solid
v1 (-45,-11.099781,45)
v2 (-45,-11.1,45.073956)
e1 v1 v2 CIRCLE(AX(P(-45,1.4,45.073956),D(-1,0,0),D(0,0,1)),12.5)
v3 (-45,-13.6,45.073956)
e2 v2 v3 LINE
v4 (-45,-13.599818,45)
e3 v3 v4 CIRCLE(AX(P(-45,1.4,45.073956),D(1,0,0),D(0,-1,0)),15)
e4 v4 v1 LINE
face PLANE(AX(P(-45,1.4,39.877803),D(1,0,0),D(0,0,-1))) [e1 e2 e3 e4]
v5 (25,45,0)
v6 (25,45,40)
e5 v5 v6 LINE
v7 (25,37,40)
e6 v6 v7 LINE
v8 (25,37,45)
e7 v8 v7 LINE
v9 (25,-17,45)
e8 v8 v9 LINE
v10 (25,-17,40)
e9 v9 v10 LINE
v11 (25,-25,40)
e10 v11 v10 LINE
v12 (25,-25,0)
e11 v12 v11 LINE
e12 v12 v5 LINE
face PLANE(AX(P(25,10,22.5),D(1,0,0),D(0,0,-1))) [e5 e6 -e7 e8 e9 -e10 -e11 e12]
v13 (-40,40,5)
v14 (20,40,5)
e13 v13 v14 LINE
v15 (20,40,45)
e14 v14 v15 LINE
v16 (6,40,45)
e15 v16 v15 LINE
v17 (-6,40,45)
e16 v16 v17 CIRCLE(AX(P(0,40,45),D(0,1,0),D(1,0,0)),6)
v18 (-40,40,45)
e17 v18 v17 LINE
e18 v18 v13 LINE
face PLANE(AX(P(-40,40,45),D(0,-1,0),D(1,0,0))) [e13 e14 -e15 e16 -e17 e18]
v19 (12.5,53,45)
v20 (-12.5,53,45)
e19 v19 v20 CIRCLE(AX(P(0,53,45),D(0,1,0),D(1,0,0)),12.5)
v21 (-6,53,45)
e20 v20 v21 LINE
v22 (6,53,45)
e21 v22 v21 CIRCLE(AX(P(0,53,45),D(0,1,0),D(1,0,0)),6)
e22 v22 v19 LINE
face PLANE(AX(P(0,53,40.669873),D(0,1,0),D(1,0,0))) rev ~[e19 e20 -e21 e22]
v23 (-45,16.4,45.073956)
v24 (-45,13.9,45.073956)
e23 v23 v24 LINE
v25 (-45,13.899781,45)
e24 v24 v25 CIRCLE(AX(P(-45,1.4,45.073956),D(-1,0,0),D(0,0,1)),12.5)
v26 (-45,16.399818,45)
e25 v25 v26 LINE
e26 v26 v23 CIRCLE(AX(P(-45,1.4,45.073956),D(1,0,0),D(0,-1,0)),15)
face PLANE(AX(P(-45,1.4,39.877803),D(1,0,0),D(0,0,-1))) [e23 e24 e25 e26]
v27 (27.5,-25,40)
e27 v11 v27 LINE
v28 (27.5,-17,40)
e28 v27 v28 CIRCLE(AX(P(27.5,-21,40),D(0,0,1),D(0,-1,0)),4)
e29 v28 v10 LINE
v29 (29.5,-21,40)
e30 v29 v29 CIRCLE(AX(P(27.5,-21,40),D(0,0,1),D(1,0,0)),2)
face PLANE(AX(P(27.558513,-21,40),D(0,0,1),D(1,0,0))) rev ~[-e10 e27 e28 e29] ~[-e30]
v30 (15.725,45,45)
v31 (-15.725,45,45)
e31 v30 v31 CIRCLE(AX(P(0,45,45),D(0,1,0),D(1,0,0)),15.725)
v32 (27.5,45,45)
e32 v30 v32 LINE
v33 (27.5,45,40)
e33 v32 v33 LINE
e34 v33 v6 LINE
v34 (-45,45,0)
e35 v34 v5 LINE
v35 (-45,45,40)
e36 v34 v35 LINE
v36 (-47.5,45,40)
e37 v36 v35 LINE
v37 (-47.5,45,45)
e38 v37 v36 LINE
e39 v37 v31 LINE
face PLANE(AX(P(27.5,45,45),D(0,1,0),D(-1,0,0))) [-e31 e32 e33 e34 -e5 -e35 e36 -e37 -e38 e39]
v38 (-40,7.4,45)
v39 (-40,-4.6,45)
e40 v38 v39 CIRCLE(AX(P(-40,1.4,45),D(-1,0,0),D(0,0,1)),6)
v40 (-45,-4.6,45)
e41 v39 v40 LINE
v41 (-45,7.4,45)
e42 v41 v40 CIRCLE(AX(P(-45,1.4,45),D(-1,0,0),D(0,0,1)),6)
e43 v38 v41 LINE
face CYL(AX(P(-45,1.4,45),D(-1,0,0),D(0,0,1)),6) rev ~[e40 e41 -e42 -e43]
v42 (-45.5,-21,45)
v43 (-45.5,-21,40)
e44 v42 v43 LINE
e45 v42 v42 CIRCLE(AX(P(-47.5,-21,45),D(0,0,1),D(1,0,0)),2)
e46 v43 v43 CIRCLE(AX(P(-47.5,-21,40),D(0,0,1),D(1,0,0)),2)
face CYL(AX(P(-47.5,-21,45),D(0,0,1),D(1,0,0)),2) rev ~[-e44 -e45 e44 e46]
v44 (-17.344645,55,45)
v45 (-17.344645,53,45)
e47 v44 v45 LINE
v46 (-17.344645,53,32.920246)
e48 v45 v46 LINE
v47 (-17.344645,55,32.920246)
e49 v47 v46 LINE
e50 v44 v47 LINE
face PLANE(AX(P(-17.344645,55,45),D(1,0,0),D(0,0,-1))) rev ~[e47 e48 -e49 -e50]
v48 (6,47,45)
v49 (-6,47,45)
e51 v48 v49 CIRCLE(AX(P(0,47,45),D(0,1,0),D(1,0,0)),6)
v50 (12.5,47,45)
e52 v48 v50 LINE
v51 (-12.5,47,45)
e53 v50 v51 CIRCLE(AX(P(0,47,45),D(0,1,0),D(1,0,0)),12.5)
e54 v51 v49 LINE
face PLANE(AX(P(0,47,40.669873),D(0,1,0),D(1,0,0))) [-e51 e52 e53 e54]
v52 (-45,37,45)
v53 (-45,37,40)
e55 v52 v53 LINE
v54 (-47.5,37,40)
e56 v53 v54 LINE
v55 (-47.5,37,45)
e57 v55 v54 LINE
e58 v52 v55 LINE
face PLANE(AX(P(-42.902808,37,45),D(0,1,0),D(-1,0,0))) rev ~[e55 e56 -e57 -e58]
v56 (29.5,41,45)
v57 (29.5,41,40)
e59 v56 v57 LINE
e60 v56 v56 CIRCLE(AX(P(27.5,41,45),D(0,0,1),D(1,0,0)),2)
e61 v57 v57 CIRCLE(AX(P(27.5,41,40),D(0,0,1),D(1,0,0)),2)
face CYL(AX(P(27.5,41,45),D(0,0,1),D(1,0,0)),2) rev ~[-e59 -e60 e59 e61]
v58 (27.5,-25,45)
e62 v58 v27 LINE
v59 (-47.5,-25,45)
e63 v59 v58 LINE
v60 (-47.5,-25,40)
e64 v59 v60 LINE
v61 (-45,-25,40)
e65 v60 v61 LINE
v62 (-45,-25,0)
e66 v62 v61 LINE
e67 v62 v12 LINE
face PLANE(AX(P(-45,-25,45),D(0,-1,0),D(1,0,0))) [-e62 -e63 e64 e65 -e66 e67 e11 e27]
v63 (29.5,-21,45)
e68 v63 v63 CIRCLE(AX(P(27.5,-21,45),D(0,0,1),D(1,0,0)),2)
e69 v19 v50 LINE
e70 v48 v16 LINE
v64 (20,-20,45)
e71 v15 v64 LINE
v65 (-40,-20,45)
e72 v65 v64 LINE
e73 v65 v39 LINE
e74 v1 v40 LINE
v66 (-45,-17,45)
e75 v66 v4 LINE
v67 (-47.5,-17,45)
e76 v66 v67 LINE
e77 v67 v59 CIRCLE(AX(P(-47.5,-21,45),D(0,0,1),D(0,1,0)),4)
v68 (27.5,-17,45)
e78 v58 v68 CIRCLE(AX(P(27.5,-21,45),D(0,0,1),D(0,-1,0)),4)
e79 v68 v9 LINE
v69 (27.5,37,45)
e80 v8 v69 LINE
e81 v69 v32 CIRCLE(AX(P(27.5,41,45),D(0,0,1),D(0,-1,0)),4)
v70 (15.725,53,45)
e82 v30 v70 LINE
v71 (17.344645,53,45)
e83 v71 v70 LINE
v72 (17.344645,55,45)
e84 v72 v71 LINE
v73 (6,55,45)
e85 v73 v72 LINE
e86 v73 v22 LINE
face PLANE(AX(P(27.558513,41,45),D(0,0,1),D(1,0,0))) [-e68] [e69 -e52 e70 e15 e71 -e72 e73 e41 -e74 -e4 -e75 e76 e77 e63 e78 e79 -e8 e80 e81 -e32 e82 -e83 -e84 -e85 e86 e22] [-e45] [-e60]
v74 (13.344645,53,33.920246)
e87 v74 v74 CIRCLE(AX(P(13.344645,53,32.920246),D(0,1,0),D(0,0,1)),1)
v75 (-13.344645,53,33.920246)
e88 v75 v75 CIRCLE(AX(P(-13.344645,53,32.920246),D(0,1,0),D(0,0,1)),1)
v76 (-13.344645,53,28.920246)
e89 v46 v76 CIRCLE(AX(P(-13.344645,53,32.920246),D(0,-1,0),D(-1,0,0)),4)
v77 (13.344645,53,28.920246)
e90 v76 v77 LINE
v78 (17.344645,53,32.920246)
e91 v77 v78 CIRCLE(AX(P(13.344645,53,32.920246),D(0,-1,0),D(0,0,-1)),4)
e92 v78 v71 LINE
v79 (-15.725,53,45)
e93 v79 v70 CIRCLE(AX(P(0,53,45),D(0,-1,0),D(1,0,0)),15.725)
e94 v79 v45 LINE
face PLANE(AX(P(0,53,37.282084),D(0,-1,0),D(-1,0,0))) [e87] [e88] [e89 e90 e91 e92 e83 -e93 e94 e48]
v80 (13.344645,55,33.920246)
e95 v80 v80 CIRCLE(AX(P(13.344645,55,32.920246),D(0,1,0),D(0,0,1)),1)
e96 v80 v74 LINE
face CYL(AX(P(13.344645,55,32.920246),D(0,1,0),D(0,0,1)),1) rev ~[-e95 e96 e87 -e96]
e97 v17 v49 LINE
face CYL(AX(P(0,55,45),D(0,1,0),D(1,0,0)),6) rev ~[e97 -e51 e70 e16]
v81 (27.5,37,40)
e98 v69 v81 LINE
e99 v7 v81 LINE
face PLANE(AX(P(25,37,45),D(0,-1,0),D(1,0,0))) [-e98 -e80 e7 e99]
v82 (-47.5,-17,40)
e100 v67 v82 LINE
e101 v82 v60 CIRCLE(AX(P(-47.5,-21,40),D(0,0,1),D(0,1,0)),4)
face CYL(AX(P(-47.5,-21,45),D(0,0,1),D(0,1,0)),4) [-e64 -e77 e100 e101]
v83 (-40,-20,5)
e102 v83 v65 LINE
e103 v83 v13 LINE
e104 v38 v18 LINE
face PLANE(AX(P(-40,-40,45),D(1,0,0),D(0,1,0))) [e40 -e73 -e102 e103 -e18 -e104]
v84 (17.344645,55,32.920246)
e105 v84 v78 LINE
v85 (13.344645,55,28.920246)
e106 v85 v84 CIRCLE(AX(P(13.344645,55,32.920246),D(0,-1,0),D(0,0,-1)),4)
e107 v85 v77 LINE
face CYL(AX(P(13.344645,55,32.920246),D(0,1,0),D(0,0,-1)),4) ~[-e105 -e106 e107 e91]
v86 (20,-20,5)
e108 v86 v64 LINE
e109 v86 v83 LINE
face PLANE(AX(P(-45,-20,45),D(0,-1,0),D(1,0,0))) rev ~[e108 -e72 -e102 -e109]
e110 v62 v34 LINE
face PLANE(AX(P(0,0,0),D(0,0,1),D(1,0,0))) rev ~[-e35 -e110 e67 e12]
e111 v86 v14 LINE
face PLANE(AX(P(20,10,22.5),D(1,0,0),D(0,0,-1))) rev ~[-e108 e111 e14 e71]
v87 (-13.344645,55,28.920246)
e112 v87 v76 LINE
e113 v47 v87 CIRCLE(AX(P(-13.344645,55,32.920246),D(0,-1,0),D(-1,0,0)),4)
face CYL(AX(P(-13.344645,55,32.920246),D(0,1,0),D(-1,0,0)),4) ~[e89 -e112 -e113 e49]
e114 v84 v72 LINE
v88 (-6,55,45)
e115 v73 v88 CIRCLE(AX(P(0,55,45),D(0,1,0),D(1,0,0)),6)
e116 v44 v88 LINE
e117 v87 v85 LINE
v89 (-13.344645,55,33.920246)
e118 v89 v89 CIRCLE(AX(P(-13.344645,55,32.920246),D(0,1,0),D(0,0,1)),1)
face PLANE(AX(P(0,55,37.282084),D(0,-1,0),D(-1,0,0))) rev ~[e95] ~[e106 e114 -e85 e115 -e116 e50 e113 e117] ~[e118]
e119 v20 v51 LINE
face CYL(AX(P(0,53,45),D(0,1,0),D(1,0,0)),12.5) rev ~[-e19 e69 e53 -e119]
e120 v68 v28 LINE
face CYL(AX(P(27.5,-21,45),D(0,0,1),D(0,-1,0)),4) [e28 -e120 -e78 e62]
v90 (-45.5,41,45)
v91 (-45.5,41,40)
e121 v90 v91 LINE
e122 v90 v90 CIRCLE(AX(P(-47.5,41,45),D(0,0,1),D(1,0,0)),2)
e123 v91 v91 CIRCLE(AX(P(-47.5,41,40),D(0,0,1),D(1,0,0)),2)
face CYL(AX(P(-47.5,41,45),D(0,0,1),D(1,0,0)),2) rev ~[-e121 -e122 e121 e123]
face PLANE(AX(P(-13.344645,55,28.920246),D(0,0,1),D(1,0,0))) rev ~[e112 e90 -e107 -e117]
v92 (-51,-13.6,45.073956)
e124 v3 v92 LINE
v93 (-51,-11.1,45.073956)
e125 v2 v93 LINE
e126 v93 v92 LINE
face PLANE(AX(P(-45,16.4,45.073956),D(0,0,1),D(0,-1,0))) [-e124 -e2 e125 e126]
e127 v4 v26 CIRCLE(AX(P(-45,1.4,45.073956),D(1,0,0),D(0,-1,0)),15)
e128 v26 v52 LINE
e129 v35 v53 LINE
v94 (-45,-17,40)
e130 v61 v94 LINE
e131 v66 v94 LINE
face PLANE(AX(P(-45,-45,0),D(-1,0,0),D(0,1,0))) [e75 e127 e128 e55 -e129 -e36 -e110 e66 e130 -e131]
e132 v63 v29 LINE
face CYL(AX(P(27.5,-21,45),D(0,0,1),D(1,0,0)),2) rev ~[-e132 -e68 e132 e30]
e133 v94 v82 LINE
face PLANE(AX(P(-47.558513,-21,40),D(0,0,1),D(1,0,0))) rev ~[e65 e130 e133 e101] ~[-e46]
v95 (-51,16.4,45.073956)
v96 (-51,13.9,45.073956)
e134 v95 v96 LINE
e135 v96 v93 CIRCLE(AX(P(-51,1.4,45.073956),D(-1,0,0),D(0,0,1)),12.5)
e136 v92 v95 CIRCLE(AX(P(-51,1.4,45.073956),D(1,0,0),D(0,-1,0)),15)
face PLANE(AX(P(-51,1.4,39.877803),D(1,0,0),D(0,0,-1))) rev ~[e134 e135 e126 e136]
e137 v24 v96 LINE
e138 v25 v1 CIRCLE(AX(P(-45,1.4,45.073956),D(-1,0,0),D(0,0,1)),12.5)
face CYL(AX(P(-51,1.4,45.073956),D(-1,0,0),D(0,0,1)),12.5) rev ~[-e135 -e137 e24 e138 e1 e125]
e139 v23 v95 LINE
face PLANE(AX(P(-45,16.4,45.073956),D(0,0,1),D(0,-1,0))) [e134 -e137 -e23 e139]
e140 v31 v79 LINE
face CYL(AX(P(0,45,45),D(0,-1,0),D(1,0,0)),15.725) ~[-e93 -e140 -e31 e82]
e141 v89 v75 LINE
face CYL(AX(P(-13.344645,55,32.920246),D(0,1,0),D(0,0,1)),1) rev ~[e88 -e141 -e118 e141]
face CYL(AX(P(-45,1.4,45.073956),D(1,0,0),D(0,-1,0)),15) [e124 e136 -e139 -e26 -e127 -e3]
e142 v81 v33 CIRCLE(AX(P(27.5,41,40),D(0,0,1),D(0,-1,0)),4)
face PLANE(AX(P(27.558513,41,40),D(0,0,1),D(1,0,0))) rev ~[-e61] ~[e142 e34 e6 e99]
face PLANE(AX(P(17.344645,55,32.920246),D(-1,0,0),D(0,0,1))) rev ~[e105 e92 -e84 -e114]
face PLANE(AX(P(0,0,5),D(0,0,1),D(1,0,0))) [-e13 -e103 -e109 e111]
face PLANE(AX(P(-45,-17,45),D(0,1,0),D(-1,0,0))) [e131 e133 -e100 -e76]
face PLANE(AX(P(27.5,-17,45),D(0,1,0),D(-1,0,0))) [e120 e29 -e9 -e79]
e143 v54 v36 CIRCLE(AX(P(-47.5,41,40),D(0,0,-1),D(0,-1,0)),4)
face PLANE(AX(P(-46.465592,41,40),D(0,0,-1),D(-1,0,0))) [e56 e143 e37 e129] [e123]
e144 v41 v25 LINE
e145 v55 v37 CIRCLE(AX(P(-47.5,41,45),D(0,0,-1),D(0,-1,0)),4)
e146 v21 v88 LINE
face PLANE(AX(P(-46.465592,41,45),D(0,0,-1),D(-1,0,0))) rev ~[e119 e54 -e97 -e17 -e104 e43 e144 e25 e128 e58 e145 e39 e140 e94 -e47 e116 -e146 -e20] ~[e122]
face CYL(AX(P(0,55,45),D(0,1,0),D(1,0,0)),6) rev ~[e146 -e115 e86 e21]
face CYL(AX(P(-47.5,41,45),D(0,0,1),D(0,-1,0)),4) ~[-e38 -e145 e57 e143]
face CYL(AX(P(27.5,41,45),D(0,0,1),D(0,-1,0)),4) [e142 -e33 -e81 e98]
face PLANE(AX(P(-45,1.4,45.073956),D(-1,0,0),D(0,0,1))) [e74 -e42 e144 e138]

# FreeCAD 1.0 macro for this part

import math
import FreeCAD as App
import Part
import Sketcher
Q = App.Units.Quantity


def add_polygon(sketch, points):
    """Adds a closed chain of lines whose ends are joined by coincident constraints."""
    first, n = sketch.GeometryCount, len(points)
    for a, b in zip(points, points[1:] + points[:1]):
        sketch.addGeometry(Part.LineSegment(App.Vector(*a, 0), App.Vector(*b, 0)), False)
    for i in range(n):
        sketch.addConstraint(Sketcher.Constraint("Coincident", first + i, 2, first + (i + 1) % n, 1))

doc = App.newDocument("Part")
params = doc.addObject("Spreadsheet::Sheet", "Params")
for row, (alias, value) in enumerate([
    ("sketch1_width", "90 mm"),
    ("pad1_length", "45 mm"),
    ("sketch2_width", "80 mm"),
    ("pocket1_length", "40 mm"),
    ("pad2_length", "10 mm"),
    ("sketch4_diameter", "2 mm"),
    ("sketch4_radius", "4 mm"),
    ("pad3_length", "2 mm"),
    ("sketch5_diameter", "12 mm"),
    ("pocket2_length", "30 mm"),
    ("sketch6_radius", "15 mm"),
    ("pad4_length", "6 mm"),
    ("sketch7_radius", "12.5 mm"),
    ("pocket3_length", "6 mm"),
    ("sketch8_diameter", "25 mm"),
    ("pocket4_length", "6 mm"),
    ("sketch9_diameter", "12 mm"),
    ("pocket5_length", "6 mm"),
    ("sketch10_diameter", "4 mm"),
    ("sketch10_radius", "4 mm"),
    ("pad5_length", "5 mm"),
    ("sketch12_width", "70 mm"),
    ("sketch12_height", "45 mm"),
    ("pad6_length", "5 mm"),
    ("sketch13_width", "70 mm"),
    ("sketch13_height", "5 mm"),
    ("sketch14_diameter", "4 mm"),
    ("sketch14_radius", "4 mm"),
    ("sketch14_width", "2.5 mm"),
    ("pad8_length", "5 mm"),
], start=1):
    params.set(f"A{row}", alias)
    params.set(f"B{row}", "=" + value)
    params.setAlias(f"B{row}", alias)

body = doc.addObject("PartDesign::Body", "Body")

# Sketch on XY plane
sketch1 = body.newObject("Sketcher::SketchObject", "Sketch")
sketch1.AttachmentSupport = (doc.getObject("XY_Plane"), [""])
sketch1.MapMode = "FlatFace"
add_polygon(sketch1, [(-45, 45), (-45, -45), (45, -45), (45, 45)])  # lines 0-3
sketch1.addConstraint([
    Sketcher.Constraint("Vertical", 0),
    Sketcher.Constraint("Horizontal", 1),
    Sketcher.Constraint("Vertical", 2),
    Sketcher.Constraint("Horizontal", 3),
    Sketcher.Constraint("Symmetric", 0, 2, 2, 2, -1, 1),
    Sketcher.Constraint("Equal", 3, 0),
    Sketcher.Constraint("DistanceX", 1, 1, 1, 2, Q("90 mm")),
])
sketch1.setExpression("Constraints[10]", "Params.sketch1_width")
pad1 = body.newObject("PartDesign::Pad", "Pad")
pad1.Profile = sketch1
pad1.setExpression("Length", "Params.pad1_length")

# Sketch on XY plane
sketch2 = body.newObject("Sketcher::SketchObject", "Sketch001")
sketch2.AttachmentSupport = (doc.getObject("XY_Plane"), [""])
sketch2.MapMode = "FlatFace"
sketch2.AttachmentOffset = App.Placement(App.Vector(0, 0, 45), App.Rotation())
add_polygon(sketch2, [(-40, 40), (-40, -40), (40, -40), (40, 40)])  # lines 0-3
sketch2.addConstraint([
    Sketcher.Constraint("Vertical", 0),
    Sketcher.Constraint("Horizontal", 1),
    Sketcher.Constraint("Vertical", 2),
    Sketcher.Constraint("Horizontal", 3),
    Sketcher.Constraint("Symmetric", 0, 2, 2, 2, -1, 1),
    Sketcher.Constraint("Equal", 3, 0),
    Sketcher.Constraint("DistanceX", 1, 1, 1, 2, Q("80 mm")),
])
sketch2.setExpression("Constraints[10]", "Params.sketch2_width")
pocket1 = body.newObject("PartDesign::Pocket", "Pocket")
pocket1.Profile = sketch2
pocket1.setExpression("Length", "Params.pocket1_length")

# Sketch on XZ plane
sketch3 = body.newObject("Sketcher::SketchObject", "Sketch002")
sketch3.AttachmentSupport = (doc.getObject("XZ_Plane"), [""])
sketch3.MapMode = "FlatFace"
sketch3.AttachmentOffset = App.Placement(App.Vector(0, 0, -45), App.Rotation())
sketch3.addGeometry([
    Part.LineSegment(App.Vector(-16, 45, 0), App.Vector(16, 45, 0)),
    Part.ArcOfCircle(Part.Circle(App.Vector(0, 45, 0), App.Vector(0, 0, 1), 16), math.radians(180), math.radians(360)),
], False)
sketch3.addConstraint([
    Sketcher.Constraint("Coincident", 0, 1, 1, 1),
    Sketcher.Constraint("Coincident", 1, 2, 0, 2),
    Sketcher.Constraint("Horizontal", 0),
    Sketcher.Constraint("PointOnObject", 1, 3, -2),
    Sketcher.Constraint("Horizontal", 1, 3, 0, 1),
    Sketcher.Constraint("DistanceY", -1, 1, 1, 3, Q("45 mm")),
    Sketcher.Constraint("Radius", 1, Q("15.725 mm")),
])
pad2 = body.newObject("PartDesign::Pad", "Pad001")
pad2.Profile = sketch3
pad2.setExpression("Length", "Params.pad2_length")
pad2.Reversed = True

# Sketch on XZ plane
sketch4 = body.newObject("Sketcher::SketchObject", "Sketch003")
sketch4.AttachmentSupport = (doc.getObject("XZ_Plane"), [""])
sketch4.MapMode = "FlatFace"
sketch4.AttachmentOffset = App.Placement(App.Vector(0, 0, -55), App.Rotation())
sketch4.addGeometry([
    Part.LineSegment(App.Vector(13.3, 28.9, 0), App.Vector(-13.3, 28.9, 0)),  # 0
    Part.ArcOfCircle(Part.Circle(App.Vector(-13.3, 32.9, 0), App.Vector(0, 0, 1), 4), math.radians(-180), math.radians(-90)),  # 1
    Part.LineSegment(App.Vector(-17.3, 32.9, 0), App.Vector(-17.3, 45, 0)),  # 2
    Part.LineSegment(App.Vector(-17.3, 45, 0), App.Vector(17.3, 45, 0)),  # 3
    Part.LineSegment(App.Vector(17.3, 45, 0), App.Vector(17.3, 32.9, 0)),  # 4
    Part.ArcOfCircle(Part.Circle(App.Vector(13.3, 32.9, 0), App.Vector(0, 0, 1), 4), math.radians(-90), math.radians(0)),  # 5
    Part.Circle(App.Vector(13.3, 32.9, 0), App.Vector(0, 0, 1), 1),  # 6
    Part.Circle(App.Vector(-13.3, 32.9, 0), App.Vector(0, 0, 1), 1),  # 7
], False)
sketch4.addConstraint([
    Sketcher.Constraint("Tangent", 0, 2, 1, 2),
    Sketcher.Constraint("Tangent", 1, 1, 2, 1),
    Sketcher.Constraint("Coincident", 2, 2, 3, 1),
    Sketcher.Constraint("Coincident", 3, 2, 4, 1),
    Sketcher.Constraint("Tangent", 4, 2, 5, 2),
    Sketcher.Constraint("Tangent", 5, 1, 0, 1),
    Sketcher.Constraint("Horizontal", 0),
    Sketcher.Constraint("Vertical", 2),
    Sketcher.Constraint("Horizontal", 3),
    Sketcher.Constraint("Vertical", 4),
    Sketcher.Constraint("Coincident", 6, 3, 5, 3),
    Sketcher.Constraint("Coincident", 7, 3, 1, 3),
    Sketcher.Constraint("Equal", 1, 5),
    Sketcher.Constraint("Equal", 6, 7),
    Sketcher.Constraint("Diameter", 6, Q("2 mm")),
    Sketcher.Constraint("Radius", 1, Q("4 mm")),
    Sketcher.Constraint("DistanceY", -1, 1, 2, 2, Q("45 mm")),
    Sketcher.Constraint("DistanceX", 0, 2, 0, 1, Q("26.689289 mm")),
    Sketcher.Constraint("DistanceY", 2, 1, 2, 2, Q("12.079754 mm")),
    Sketcher.Constraint("DistanceX", 1, 3, -1, 1, Q("13.344645 mm")),
])
sketch4.setExpression("Constraints[14]", "Params.sketch4_diameter")
sketch4.setExpression("Constraints[15]", "Params.sketch4_radius")
pad3 = body.newObject("PartDesign::Pad", "Pad002")
pad3.Profile = sketch4
pad3.setExpression("Length", "Params.pad3_length")

# Sketch on XZ plane
sketch5 = body.newObject("Sketcher::SketchObject", "Sketch004")
sketch5.AttachmentSupport = (doc.getObject("XZ_Plane"), [""])
sketch5.MapMode = "FlatFace"
sketch5.AttachmentOffset = App.Placement(App.Vector(0, 0, -55), App.Rotation())
sketch5.addGeometry(Part.Circle(App.Vector(0, 45, 0), App.Vector(0, 0, 1), 6), False)
sketch5.addConstraint([
    Sketcher.Constraint("PointOnObject", 0, 3, -2),
    Sketcher.Constraint("Diameter", 0, Q("12 mm")),
    Sketcher.Constraint("DistanceY", -1, 1, 0, 3, Q("45 mm")),
])
sketch5.setExpression("Constraints[1]", "Params.sketch5_diameter")
pocket2 = body.newObject("PartDesign::Pocket", "Pocket001")
pocket2.Profile = sketch5
pocket2.setExpression("Length", "Params.pocket2_length")
pocket2.Reversed = True

# Sketch on YZ plane
sketch6 = body.newObject("Sketcher::SketchObject", "Sketch005")
sketch6.AttachmentSupport = (doc.getObject("YZ_Plane"), [""])
sketch6.MapMode = "FlatFace"
sketch6.AttachmentOffset = App.Placement(App.Vector(0, 0, -45), App.Rotation())
sketch6.addGeometry([
    Part.LineSegment(App.Vector(-14, 45, 0), App.Vector(16, 45, 0)),
    Part.ArcOfCircle(Part.Circle(App.Vector(1, 45, 0), App.Vector(0, 0, 1), 15), math.radians(180), math.radians(360)),
], False)
sketch6.addConstraint([
    Sketcher.Constraint("Coincident", 0, 1, 1, 1),
    Sketcher.Constraint("Coincident", 1, 2, 0, 2),
    Sketcher.Constraint("Horizontal", 0),
    Sketcher.Constraint("Horizontal", 1, 3, 0, 1),
    Sketcher.Constraint("Radius", 1, Q("15 mm")),
    Sketcher.Constraint("DistanceX", -1, 1, 1, 3, Q("1.4 mm")),
    Sketcher.Constraint("DistanceY", -1, 1, 1, 3, Q("45.073956 mm")),
])
sketch6.setExpression("Constraints[4]", "Params.sketch6_radius")
pad4 = body.newObject("PartDesign::Pad", "Pad003")
pad4.Profile = sketch6
pad4.setExpression("Length", "Params.pad4_length")
pad4.Reversed = True

# Sketch on XZ plane
sketch7 = body.newObject("Sketcher::SketchObject", "Sketch006")
sketch7.AttachmentSupport = (doc.getObject("XZ_Plane"), [""])
sketch7.MapMode = "FlatFace"
sketch7.AttachmentOffset = App.Placement(App.Vector(0, 0, -53), App.Rotation())
sketch7.addGeometry([
    Part.LineSegment(App.Vector(-12, 45, 0), App.Vector(12, 45, 0)),
    Part.ArcOfCircle(Part.Circle(App.Vector(0, 45, 0), App.Vector(0, 0, 1), 12), math.radians(180), math.radians(360)),
], False)
sketch7.addConstraint([
    Sketcher.Constraint("Coincident", 0, 1, 1, 1),
    Sketcher.Constraint("Coincident", 1, 2, 0, 2),
    Sketcher.Constraint("Horizontal", 0),
    Sketcher.Constraint("PointOnObject", 1, 3, -2),
    Sketcher.Constraint("Horizontal", 1, 3, 0, 1),
    Sketcher.Constraint("Radius", 1, Q("12.5 mm")),
    Sketcher.Constraint("DistanceY", -1, 1, 1, 3, Q("45 mm")),
])
sketch7.setExpression("Constraints[5]", "Params.sketch7_radius")
pocket3 = body.newObject("PartDesign::Pocket", "Pocket002")
pocket3.Profile = sketch7
pocket3.setExpression("Length", "Params.pocket3_length")
pocket3.Reversed = True

# Sketch on YZ plane
sketch8 = body.newObject("Sketcher::SketchObject", "Sketch007")
sketch8.AttachmentSupport = (doc.getObject("YZ_Plane"), [""])
sketch8.MapMode = "FlatFace"
sketch8.AttachmentOffset = App.Placement(App.Vector(0, 0, -51), App.Rotation())
sketch8.addGeometry(Part.Circle(App.Vector(1, 45, 0), App.Vector(0, 0, 1), 12), False)
sketch8.addConstraint([
    Sketcher.Constraint("Diameter", 0, Q("25 mm")),
    Sketcher.Constraint("DistanceX", -1, 1, 0, 3, Q("1.4 mm")),
    Sketcher.Constraint("DistanceY", -1, 1, 0, 3, Q("45.073956 mm")),
])
sketch8.setExpression("Constraints[0]", "Params.sketch8_diameter")
pocket4 = body.newObject("PartDesign::Pocket", "Pocket003")
pocket4.Profile = sketch8
pocket4.setExpression("Length", "Params.pocket4_length")
pocket4.Reversed = True

# Sketch on YZ plane
sketch9 = body.newObject("Sketcher::SketchObject", "Sketch008")
sketch9.AttachmentSupport = (doc.getObject("YZ_Plane"), [""])
sketch9.MapMode = "FlatFace"
sketch9.AttachmentOffset = App.Placement(App.Vector(0, 0, -45), App.Rotation())
sketch9.addGeometry(Part.Circle(App.Vector(1, 45, 0), App.Vector(0, 0, 1), 6), False)
sketch9.addConstraint([
    Sketcher.Constraint("Diameter", 0, Q("12 mm")),
    Sketcher.Constraint("DistanceY", -1, 1, 0, 3, Q("45 mm")),
    Sketcher.Constraint("DistanceX", -1, 1, 0, 3, Q("1.4 mm")),
])
sketch9.setExpression("Constraints[0]", "Params.sketch9_diameter")
pocket5 = body.newObject("PartDesign::Pocket", "Pocket004")
pocket5.Profile = sketch9
pocket5.setExpression("Length", "Params.pocket5_length")
pocket5.Reversed = True

# Sketch on XY plane
sketch10 = body.newObject("Sketcher::SketchObject", "Sketch009")
sketch10.AttachmentSupport = (doc.getObject("XY_Plane"), [""])
sketch10.MapMode = "FlatFace"
sketch10.AttachmentOffset = App.Placement(App.Vector(0, 0, 45), App.Rotation())
sketch10.addGeometry([
    Part.LineSegment(App.Vector(-42.9, 45, 0), App.Vector(-47.5, 45, 0)),  # 0
    Part.ArcOfCircle(Part.Circle(App.Vector(-47.5, 41, 0), App.Vector(0, 0, 1), 4), math.radians(90), math.radians(270)),  # 1
    Part.LineSegment(App.Vector(-47.5, 37, 0), App.Vector(-42.9, 37, 0)),  # 2
    Part.LineSegment(App.Vector(-42.9, 37, 0), App.Vector(-42.9, 45, 0)),  # 3
    Part.Circle(App.Vector(-47.5, 41, 0), App.Vector(0, 0, 1), 2),  # 4
    Part.LineSegment(App.Vector(-47.5, -45, 0), App.Vector(-42.9, -45, 0)),  # 5
    Part.LineSegment(App.Vector(-42.9, -45, 0), App.Vector(-42.9, -37, 0)),  # 6
    Part.LineSegment(App.Vector(-42.9, -37, 0), App.Vector(-47.5, -37, 0)),  # 7
    Part.ArcOfCircle(Part.Circle(App.Vector(-47.5, -41, 0), App.Vector(0, 0, 1), 4), math.radians(90), math.radians(270)),  # 8
    Part.Circle(App.Vector(-47.5, -41, 0), App.Vector(0, 0, 1), 2),  # 9
    Part.LineSegment(App.Vector(42.5, 45, 0), App.Vector(42.5, 37, 0)),  # 10
    Part.LineSegment(App.Vector(42.5, 37, 0), App.Vector(47.5, 37, 0)),  # 11
    Part.ArcOfCircle(Part.Circle(App.Vector(47.5, 41, 0), App.Vector(0, 0, 1), 4), math.radians(-90), math.radians(90)),  # 12
    Part.LineSegment(App.Vector(47.5, 45, 0), App.Vector(42.5, 45, 0)),  # 13
    Part.Circle(App.Vector(47.5, 41, 0), App.Vector(0, 0, 1), 2),  # 14
    Part.LineSegment(App.Vector(41.1, -37, 0), App.Vector(41.1, -45, 0)),  # 15
    Part.LineSegment(App.Vector(41.1, -45, 0), App.Vector(47.5, -45, 0)),  # 16
    Part.ArcOfCircle(Part.Circle(App.Vector(47.5, -41, 0), App.Vector(0, 0, 1), 4), math.radians(-90), math.radians(90)),  # 17
    Part.LineSegment(App.Vector(47.5, -37, 0), App.Vector(41.1, -37, 0)),  # 18
    Part.Circle(App.Vector(47.5, -41, 0), App.Vector(0, 0, 1), 2),  # 19
], False)
sketch10.addConstraint([
    Sketcher.Constraint("Tangent", 0, 2, 1, 1),
    Sketcher.Constraint("Tangent", 1, 2, 2, 1),
    Sketcher.Constraint("Coincident", 2, 2, 3, 1),
    Sketcher.Constraint("Coincident", 3, 2, 0, 1),
    Sketcher.Constraint("Coincident", 5, 2, 6, 1),
    Sketcher.Constraint("Coincident", 6, 2, 7, 1),
    Sketcher.Constraint("Tangent", 7, 2, 8, 1),
    Sketcher.Constraint("Tangent", 8, 2, 5, 1),
    Sketcher.Constraint("Coincident", 10, 2, 11, 1),
    Sketcher.Constraint("Tangent", 11, 2, 12, 1),
    Sketcher.Constraint("Tangent", 12, 2, 13, 1),
    Sketcher.Constraint("Coincident", 13, 2, 10, 1),
    Sketcher.Constraint("Coincident", 15, 2, 16, 1),
    Sketcher.Constraint("Tangent", 16, 2, 17, 1),
    Sketcher.Constraint("Tangent", 17, 2, 18, 1),
    Sketcher.Constraint("Coincident", 18, 2, 15, 1),
    Sketcher.Constraint("Horizontal", 0),
    Sketcher.Constraint("Horizontal", 2),
    Sketcher.Constraint("Vertical", 3),
    Sketcher.Constraint("Horizontal", 5),
    Sketcher.Constraint("Vertical", 6),
    Sketcher.Constraint("Horizontal", 7),
    Sketcher.Constraint("Vertical", 10),
    Sketcher.Constraint("Horizontal", 11),
    Sketcher.Constraint("Horizontal", 13),
    Sketcher.Constraint("Vertical", 15),
    Sketcher.Constraint("Horizontal", 16),
    Sketcher.Constraint("Horizontal", 18),
    Sketcher.Constraint("Coincident", 4, 3, 1, 3),
    Sketcher.Constraint("Coincident", 9, 3, 8, 3),
    Sketcher.Constraint("Coincident", 14, 3, 12, 3),
    Sketcher.Constraint("Coincident", 19, 3, 17, 3),
    Sketcher.Constraint("Equal", 1, 8),
    Sketcher.Constraint("Equal", 4, 9),
    Sketcher.Constraint("Equal", 8, 12),
    Sketcher.Constraint("Equal", 9, 14),
    Sketcher.Constraint("Equal", 12, 17),
    Sketcher.Constraint("Equal", 14, 19),
    Sketcher.Constraint("Symmetric", 8, 3, 12, 3, -1, 1),
    Sketcher.Constraint("Symmetric", 1, 3, 17, 3, -1, 1),
    Sketcher.Constraint("Symmetric", 1, 3, 12, 3, -2),
    Sketcher.Constraint("Vertical", 3, 2, 5, 2),
    Sketcher.Constraint("Diameter", 4, Q("4 mm")),
    Sketcher.Constraint("Radius", 1, Q("4 mm")),
    Sketcher.Constraint("DistanceY", -1, 1, 1, 3, Q("41 mm")),
    Sketcher.Constraint("DistanceX", 1, 3, 12, 3, Q("95 mm")),
    Sketcher.Constraint("DistanceX", 0, 2, 0, 1, Q("4.597192 mm")),
    Sketcher.Constraint("DistanceX", 11, 1, 11, 2, Q("5.039118 mm")),
    Sketcher.Constraint("DistanceX", 16, 1, 16, 2, Q("6.434903 mm")),
])
sketch10.setExpression("Constraints[42]", "Params.sketch10_diameter")
sketch10.setExpression("Constraints[43]", "Params.sketch10_radius")
pad5 = body.newObject("PartDesign::Pad", "Pad004")
pad5.Profile = sketch10
pad5.setExpression("Length", "Params.pad5_length")
pad5.Reversed = True

# Sketch on XY plane
sketch11 = body.newObject("Sketcher::SketchObject", "Sketch010")
sketch11.AttachmentSupport = (doc.getObject("XY_Plane"), [""])
sketch11.MapMode = "FlatFace"
sketch11.AttachmentOffset = App.Placement(App.Vector(0, 0, 5), App.Rotation())
add_polygon(sketch11, [(25, 61), (25, -25), (-87, -25), (-87, -74), (86, -74), (86, 61)])  # lines 0-5
sketch11.addConstraint([
    Sketcher.Constraint("Vertical", 0),
    Sketcher.Constraint("Horizontal", 1),
    Sketcher.Constraint("Vertical", 2),
    Sketcher.Constraint("Horizontal", 3),
    Sketcher.Constraint("Vertical", 4),
    Sketcher.Constraint("Horizontal", 5),
    Sketcher.Constraint("DistanceX", -1, 1, 0, 2, Q("25 mm")),
    Sketcher.Constraint("DistanceY", 0, 2, -1, 1, Q("25 mm")),
    Sketcher.Constraint("DistanceX", 1, 2, 1, 1, Q("111.710921 mm")),
    Sketcher.Constraint("DistanceY", 0, 2, 0, 1, Q("85.762212 mm")),
    Sketcher.Constraint("DistanceY", 2, 2, 2, 1, Q("48.939659 mm")),
    Sketcher.Constraint("DistanceX", 3, 1, 3, 2, Q("172.603815 mm")),
])
pocket6 = body.newObject("PartDesign::Pocket", "Pocket005")
pocket6.Profile = sketch11
pocket6.Type = "ThroughAll"
pocket6.Midplane = True

# Sketch on YZ plane
sketch12 = body.newObject("Sketcher::SketchObject", "Sketch011")
sketch12.AttachmentSupport = (doc.getObject("YZ_Plane"), [""])
sketch12.MapMode = "FlatFace"
sketch12.AttachmentOffset = App.Placement(App.Vector(0, 0, 25), App.Rotation())
add_polygon(sketch12, [(-25, 45), (-25, 0), (45, 0), (45, 45)])  # lines 0-3
sketch12.addConstraint([
    Sketcher.Constraint("Vertical", 0),
    Sketcher.Constraint("Horizontal", 1),
    Sketcher.Constraint("Vertical", 2),
    Sketcher.Constraint("Horizontal", 3),
    Sketcher.Constraint("PointOnObject", 0, 2, -1),
    Sketcher.Constraint("DistanceX", 1, 1, 1, 2, Q("70 mm")),
    Sketcher.Constraint("DistanceY", 0, 2, 0, 1, Q("45 mm")),
    Sketcher.Constraint("DistanceX", 0, 2, -1, 1, Q("25 mm")),
])
sketch12.setExpression("Constraints[9]", "Params.sketch12_width")
sketch12.setExpression("Constraints[10]", "Params.sketch12_height")
pad6 = body.newObject("PartDesign::Pad", "Pad005")
pad6.Profile = sketch12
pad6.setExpression("Length", "Params.pad6_length")
pad6.Reversed = True

# Sketch on XY plane
sketch13 = body.newObject("Sketcher::SketchObject", "Sketch012")
sketch13.AttachmentSupport = (doc.getObject("XY_Plane"), [""])
sketch13.MapMode = "FlatFace"
sketch13.AttachmentOffset = App.Placement(App.Vector(0, 0, 45), App.Rotation())
add_polygon(sketch13, [(-45, -20), (-45, -25), (25, -25), (25, -20)])  # lines 0-3
sketch13.addConstraint([
    Sketcher.Constraint("Vertical", 0),
    Sketcher.Constraint("Horizontal", 1),
    Sketcher.Constraint("Vertical", 2),
    Sketcher.Constraint("Horizontal", 3),
    Sketcher.Constraint("DistanceX", 1, 1, 1, 2, Q("70 mm")),
    Sketcher.Constraint("DistanceY", 0, 2, 0, 1, Q("5 mm")),
    Sketcher.Constraint("DistanceX", 0, 2, -1, 1, Q("45 mm")),
    Sketcher.Constraint("DistanceY", 0, 2, -1, 1, Q("25 mm")),
])
sketch13.setExpression("Constraints[8]", "Params.sketch13_width")
sketch13.setExpression("Constraints[9]", "Params.sketch13_height")
pad7 = body.newObject("PartDesign::Pad", "Pad006")
pad7.Profile = sketch13
pad7.Type = "UpToFirst"
pad7.Reversed = True

# Sketch on XY plane
sketch14 = body.newObject("Sketcher::SketchObject", "Sketch013")
sketch14.AttachmentSupport = (doc.getObject("XY_Plane"), [""])
sketch14.MapMode = "FlatFace"
sketch14.AttachmentOffset = App.Placement(App.Vector(0, 0, 45), App.Rotation())
sketch14.addGeometry([
    Part.LineSegment(App.Vector(27.5, 45, 0), App.Vector(25, 45, 0)),  # 0
    Part.LineSegment(App.Vector(25, 45, 0), App.Vector(25, 37, 0)),  # 1
    Part.LineSegment(App.Vector(25, 37, 0), App.Vector(27.5, 37, 0)),  # 2
    Part.ArcOfCircle(Part.Circle(App.Vector(27.5, 41, 0), App.Vector(0, 0, 1), 4), math.radians(-90), math.radians(90)),  # 3
    Part.Circle(App.Vector(27.5, 41, 0), App.Vector(0, 0, 1), 2),  # 4
    Part.LineSegment(App.Vector(-41.5, -25, 0), App.Vector(-41.5, -17, 0)),  # 5
    Part.LineSegment(App.Vector(-41.5, -17, 0), App.Vector(-47.5, -17, 0)),  # 6
    Part.ArcOfCircle(Part.Circle(App.Vector(-47.5, -21, 0), App.Vector(0, 0, 1), 4), math.radians(90), math.radians(270)),  # 7
    Part.LineSegment(App.Vector(-47.5, -25, 0), App.Vector(-41.5, -25, 0)),  # 8
    Part.Circle(App.Vector(-47.5, -21, 0), App.Vector(0, 0, 1), 2),  # 9
    Part.LineSegment(App.Vector(21.5, -17, 0), App.Vector(21.5, -25, 0)),  # 10
    Part.LineSegment(App.Vector(21.5, -25, 0), App.Vector(27.5, -25, 0)),  # 11
    Part.ArcOfCircle(Part.Circle(App.Vector(27.5, -21, 0), App.Vector(0, 0, 1), 4), math.radians(-90), math.radians(90)),  # 12
    Part.LineSegment(App.Vector(27.5, -17, 0), App.Vector(21.5, -17, 0)),  # 13
    Part.Circle(App.Vector(27.5, -21, 0), App.Vector(0, 0, 1), 2),  # 14
], False)
sketch14.addConstraint([
    Sketcher.Constraint("Coincident", 0, 2, 1, 1),
    Sketcher.Constraint("Coincident", 1, 2, 2, 1),
    Sketcher.Constraint("Tangent", 2, 2, 3, 1),
    Sketcher.Constraint("Tangent", 3, 2, 0, 1),
    Sketcher.Constraint("Coincident", 5, 2, 6, 1),
    Sketcher.Constraint("Tangent", 6, 2, 7, 1),
    Sketcher.Constraint("Tangent", 7, 2, 8, 1),
    Sketcher.Constraint("Coincident", 8, 2, 5, 1),
    Sketcher.Constraint("Coincident", 10, 2, 11, 1),
    Sketcher.Constraint("Tangent", 11, 2, 12, 1),
    Sketcher.Constraint("Tangent", 12, 2, 13, 1),
    Sketcher.Constraint("Coincident", 13, 2, 10, 1),
    Sketcher.Constraint("Horizontal", 0),
    Sketcher.Constraint("Vertical", 1),
    Sketcher.Constraint("Horizontal", 2),
    Sketcher.Constraint("Vertical", 5),
    Sketcher.Constraint("Horizontal", 6),
    Sketcher.Constraint("Horizontal", 8),
    Sketcher.Constraint("Vertical", 10),
    Sketcher.Constraint("Horizontal", 11),
    Sketcher.Constraint("Horizontal", 13),
    Sketcher.Constraint("Coincident", 4, 3, 3, 3),
    Sketcher.Constraint("Coincident", 9, 3, 7, 3),
    Sketcher.Constraint("Coincident", 14, 3, 12, 3),
    Sketcher.Constraint("Equal", 3, 7),
    Sketcher.Constraint("Equal", 4, 9),
    Sketcher.Constraint("Equal", 7, 12),
    Sketcher.Constraint("Equal", 9, 14),
    Sketcher.Constraint("Horizontal", 9, 3, 12, 3),
    Sketcher.Constraint("Vertical", 4, 3, 12, 3),
    Sketcher.Constraint("Equal", 8, 11),
    Sketcher.Constraint("Diameter", 4, Q("4 mm")),
    Sketcher.Constraint("Radius", 3, Q("4 mm")),
    Sketcher.Constraint("DistanceX", 0, 2, 0, 1, Q("2.5 mm")),
    Sketcher.Constraint("DistanceY", -1, 1, 3, 3, Q("41 mm")),
    Sketcher.Constraint("DistanceY", 7, 3, -1, 1, Q("21 mm")),
    Sketcher.Constraint("DistanceX", -1, 1, 0, 2, Q("25 mm")),
    Sketcher.Constraint("DistanceX", 7, 3, 3, 3, Q("75 mm")),
    Sketcher.Constraint("DistanceX", 6, 2, 6, 1, Q("6.035717 mm")),
])
sketch14.setExpression("Constraints[31]", "Params.sketch14_diameter")
sketch14.setExpression("Constraints[32]", "Params.sketch14_radius")
sketch14.setExpression("Constraints[33]", "Params.sketch14_width")
pad8 = body.newObject("PartDesign::Pad", "Pad007")
pad8.Profile = sketch14
pad8.setExpression("Length", "Params.pad8_length")
pad8.Reversed = True

doc.recompute()
